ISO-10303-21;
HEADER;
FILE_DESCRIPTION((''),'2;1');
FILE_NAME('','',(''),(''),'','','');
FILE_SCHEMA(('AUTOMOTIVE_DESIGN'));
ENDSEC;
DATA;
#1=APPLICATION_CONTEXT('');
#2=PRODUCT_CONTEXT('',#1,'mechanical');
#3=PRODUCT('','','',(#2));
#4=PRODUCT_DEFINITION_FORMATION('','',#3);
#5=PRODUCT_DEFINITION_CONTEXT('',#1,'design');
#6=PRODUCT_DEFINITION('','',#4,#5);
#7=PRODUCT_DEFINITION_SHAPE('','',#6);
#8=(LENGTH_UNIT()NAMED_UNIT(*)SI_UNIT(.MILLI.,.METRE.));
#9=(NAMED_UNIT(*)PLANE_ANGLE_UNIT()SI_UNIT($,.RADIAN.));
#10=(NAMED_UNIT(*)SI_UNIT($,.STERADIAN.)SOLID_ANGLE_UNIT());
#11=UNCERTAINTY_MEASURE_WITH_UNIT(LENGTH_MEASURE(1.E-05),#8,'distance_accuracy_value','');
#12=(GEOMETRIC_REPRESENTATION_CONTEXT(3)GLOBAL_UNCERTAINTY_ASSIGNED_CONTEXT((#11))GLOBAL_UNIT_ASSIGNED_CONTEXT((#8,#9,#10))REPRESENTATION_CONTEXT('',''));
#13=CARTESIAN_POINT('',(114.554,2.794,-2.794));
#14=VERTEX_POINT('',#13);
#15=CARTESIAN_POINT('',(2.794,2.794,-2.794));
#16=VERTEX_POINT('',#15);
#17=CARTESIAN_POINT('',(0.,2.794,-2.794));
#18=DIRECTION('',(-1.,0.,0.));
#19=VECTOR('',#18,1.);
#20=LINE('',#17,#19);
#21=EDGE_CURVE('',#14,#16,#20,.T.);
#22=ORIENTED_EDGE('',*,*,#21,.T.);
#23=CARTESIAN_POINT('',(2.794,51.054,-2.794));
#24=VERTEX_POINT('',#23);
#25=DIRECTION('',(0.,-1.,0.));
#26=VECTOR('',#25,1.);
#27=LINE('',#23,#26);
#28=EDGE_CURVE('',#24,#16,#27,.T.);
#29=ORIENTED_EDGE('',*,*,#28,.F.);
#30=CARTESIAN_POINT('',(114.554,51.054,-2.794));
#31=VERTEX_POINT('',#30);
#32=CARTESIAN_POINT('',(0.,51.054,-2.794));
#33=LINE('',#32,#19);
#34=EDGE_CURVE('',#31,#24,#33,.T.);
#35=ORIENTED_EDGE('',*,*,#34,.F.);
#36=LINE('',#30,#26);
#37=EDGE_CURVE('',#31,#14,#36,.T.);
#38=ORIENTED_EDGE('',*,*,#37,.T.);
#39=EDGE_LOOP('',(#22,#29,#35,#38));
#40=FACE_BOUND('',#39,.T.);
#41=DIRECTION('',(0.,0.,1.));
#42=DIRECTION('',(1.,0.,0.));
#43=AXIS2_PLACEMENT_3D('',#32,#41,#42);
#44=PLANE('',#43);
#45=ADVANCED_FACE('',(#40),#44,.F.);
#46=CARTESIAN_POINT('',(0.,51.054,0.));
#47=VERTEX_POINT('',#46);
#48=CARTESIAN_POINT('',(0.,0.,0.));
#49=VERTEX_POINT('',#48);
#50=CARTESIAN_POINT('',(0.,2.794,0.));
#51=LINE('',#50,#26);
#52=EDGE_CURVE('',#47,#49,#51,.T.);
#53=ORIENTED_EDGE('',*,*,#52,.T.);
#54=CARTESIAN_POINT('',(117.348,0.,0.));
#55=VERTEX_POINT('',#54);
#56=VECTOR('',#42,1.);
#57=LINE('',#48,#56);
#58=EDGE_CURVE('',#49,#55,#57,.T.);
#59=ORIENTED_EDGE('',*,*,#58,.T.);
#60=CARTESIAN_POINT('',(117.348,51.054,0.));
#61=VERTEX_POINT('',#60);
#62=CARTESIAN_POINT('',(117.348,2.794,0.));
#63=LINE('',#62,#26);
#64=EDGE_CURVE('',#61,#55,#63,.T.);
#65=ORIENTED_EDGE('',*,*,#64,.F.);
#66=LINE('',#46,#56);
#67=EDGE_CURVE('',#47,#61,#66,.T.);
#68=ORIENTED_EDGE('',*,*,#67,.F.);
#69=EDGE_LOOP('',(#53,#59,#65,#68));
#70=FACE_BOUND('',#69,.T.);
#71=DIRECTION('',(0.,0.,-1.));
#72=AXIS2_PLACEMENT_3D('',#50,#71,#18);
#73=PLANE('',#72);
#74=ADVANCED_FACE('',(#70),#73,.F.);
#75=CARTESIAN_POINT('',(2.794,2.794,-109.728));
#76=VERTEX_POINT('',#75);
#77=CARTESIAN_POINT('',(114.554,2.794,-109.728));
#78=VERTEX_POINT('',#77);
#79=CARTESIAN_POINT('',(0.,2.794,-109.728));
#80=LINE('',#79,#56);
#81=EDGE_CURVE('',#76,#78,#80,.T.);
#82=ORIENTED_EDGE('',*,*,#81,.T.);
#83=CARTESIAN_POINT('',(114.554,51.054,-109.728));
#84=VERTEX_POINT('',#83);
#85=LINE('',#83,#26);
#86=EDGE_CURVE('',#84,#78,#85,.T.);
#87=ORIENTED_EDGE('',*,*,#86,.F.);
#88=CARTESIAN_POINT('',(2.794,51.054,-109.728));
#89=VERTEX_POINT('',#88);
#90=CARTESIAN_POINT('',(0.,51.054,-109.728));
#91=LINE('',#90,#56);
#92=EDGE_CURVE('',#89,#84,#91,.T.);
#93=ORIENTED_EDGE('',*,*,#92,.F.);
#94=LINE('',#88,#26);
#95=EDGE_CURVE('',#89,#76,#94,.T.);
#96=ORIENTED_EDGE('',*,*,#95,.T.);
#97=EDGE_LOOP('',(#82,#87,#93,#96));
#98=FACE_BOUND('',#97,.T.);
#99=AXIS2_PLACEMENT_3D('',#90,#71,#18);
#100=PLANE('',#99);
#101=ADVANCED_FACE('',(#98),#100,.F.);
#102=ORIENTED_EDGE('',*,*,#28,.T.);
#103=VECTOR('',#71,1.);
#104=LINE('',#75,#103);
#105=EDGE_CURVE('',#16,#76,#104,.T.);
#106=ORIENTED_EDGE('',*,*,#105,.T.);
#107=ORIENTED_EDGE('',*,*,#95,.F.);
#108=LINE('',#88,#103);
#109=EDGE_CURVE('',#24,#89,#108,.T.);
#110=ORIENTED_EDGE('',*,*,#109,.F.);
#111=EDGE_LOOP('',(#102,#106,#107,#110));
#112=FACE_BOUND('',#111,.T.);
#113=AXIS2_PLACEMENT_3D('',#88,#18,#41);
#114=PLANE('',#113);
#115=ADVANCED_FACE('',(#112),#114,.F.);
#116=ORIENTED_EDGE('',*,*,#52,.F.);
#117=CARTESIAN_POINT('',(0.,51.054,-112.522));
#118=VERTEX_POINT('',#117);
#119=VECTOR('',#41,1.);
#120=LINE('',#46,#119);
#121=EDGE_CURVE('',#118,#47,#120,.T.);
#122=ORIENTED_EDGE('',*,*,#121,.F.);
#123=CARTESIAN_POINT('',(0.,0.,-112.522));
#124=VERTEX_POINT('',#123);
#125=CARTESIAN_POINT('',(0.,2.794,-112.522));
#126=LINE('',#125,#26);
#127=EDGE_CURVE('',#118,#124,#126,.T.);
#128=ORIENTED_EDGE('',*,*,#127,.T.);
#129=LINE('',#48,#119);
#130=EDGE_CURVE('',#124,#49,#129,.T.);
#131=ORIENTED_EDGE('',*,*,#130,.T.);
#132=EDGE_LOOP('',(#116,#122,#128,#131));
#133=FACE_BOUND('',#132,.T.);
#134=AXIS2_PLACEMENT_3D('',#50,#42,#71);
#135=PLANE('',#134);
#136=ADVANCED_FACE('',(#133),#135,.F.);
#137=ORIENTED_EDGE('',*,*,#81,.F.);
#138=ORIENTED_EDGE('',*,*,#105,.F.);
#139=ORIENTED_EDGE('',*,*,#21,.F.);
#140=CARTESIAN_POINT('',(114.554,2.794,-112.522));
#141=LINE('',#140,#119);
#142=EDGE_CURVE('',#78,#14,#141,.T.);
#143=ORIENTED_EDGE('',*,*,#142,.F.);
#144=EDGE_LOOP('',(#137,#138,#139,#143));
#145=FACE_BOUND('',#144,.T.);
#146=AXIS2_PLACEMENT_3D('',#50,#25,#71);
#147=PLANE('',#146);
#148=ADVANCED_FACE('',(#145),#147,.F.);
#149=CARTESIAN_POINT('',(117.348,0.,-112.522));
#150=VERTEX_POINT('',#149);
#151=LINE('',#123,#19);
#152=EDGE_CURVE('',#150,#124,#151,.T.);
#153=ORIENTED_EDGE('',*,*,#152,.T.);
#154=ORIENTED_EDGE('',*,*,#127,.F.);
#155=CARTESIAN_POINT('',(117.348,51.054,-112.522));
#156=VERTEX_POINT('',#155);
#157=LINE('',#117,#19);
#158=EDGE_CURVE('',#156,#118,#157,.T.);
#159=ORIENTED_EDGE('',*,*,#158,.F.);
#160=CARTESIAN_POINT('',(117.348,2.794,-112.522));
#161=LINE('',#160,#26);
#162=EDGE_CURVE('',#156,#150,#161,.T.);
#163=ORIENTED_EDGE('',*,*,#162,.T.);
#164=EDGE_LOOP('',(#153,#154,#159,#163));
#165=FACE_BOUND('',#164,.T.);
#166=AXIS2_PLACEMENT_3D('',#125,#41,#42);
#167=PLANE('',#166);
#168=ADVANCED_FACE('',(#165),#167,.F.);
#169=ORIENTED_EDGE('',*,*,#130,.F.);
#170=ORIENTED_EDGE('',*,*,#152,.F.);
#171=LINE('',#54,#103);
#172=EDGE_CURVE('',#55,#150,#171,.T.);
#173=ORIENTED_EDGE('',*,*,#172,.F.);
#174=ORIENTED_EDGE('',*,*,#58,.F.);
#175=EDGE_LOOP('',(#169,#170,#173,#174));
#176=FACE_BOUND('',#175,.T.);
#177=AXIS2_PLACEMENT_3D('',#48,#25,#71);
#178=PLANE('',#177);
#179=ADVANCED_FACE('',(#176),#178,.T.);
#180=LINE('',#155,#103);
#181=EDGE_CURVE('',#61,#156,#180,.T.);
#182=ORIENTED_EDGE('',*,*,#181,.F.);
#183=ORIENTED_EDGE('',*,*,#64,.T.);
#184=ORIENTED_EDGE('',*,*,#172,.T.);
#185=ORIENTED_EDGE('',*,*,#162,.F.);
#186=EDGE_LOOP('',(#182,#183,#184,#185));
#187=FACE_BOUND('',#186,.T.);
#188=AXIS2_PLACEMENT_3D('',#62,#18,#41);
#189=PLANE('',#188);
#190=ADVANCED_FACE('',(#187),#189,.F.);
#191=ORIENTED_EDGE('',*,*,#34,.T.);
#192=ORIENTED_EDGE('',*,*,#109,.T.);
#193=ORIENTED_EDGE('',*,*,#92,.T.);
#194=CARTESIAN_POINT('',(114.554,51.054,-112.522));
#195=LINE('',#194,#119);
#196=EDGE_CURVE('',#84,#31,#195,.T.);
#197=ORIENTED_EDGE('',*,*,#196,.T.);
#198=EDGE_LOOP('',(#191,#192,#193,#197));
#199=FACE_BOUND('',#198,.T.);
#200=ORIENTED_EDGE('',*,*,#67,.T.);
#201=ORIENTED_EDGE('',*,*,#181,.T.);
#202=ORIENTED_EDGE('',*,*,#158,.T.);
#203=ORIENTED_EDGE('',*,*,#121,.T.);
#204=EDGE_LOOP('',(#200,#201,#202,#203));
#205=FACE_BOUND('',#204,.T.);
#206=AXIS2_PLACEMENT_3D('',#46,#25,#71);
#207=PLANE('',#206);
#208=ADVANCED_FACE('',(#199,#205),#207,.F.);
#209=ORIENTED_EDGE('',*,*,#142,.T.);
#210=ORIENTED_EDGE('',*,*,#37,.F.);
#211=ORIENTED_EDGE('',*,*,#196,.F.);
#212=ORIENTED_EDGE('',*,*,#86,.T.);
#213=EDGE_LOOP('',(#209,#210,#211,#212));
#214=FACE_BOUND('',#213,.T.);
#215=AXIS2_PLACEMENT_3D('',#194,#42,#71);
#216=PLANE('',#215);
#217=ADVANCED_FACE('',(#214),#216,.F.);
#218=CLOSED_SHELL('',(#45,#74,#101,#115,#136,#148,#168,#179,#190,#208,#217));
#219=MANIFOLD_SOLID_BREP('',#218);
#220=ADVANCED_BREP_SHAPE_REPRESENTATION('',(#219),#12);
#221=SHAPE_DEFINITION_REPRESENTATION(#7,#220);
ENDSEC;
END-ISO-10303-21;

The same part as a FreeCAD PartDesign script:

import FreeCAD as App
import Part
import Sketcher
from FreeCAD import Vector
Q = App.Units.Quantity


def add_polygon(sketch, points):
    """Adds a closed chain of lines whose ends are joined by coincident constraints."""
    first, n = sketch.GeometryCount, len(points)
    for a, b in zip(points, points[1:] + points[:1]):
        sketch.addGeometry(Part.LineSegment(App.Vector(*a, 0), App.Vector(*b, 0)), False)
    for i in range(n):
        sketch.addConstraint(Sketcher.Constraint("Coincident", first + i, 2, first + (i + 1) % n, 1))

doc = App.newDocument("Part")
body = doc.addObject("PartDesign::Body", "Body")

sketch1 = body.newObject("Sketcher::SketchObject", "Sketch")
sketch1.AttachmentSupport = (doc.getObject("XZ_Plane"), [""])
sketch1.MapMode = "FlatFace"
add_polygon(sketch1, [(0, -113), (0, 0), (117, 0), (117, -113)])
sketch1.addConstraint(Sketcher.Constraint("Vertical", 0))
sketch1.addConstraint(Sketcher.Constraint("Horizontal", 1))
sketch1.addConstraint(Sketcher.Constraint("Vertical", 2))
sketch1.addConstraint(Sketcher.Constraint("Horizontal", 3))
sketch1.addConstraint(Sketcher.Constraint("Coincident", 0, 2, -1, 1))
sketch1.addConstraint(Sketcher.Constraint("DistanceX", 1, 1, 1, 2, Q("4.62 in")))
sketch1.addConstraint(Sketcher.Constraint("DistanceY", 0, 1, 0, 2, Q("4.43 in")))
pad1 = body.newObject("PartDesign::Pad", "Pad")
pad1.Profile = sketch1
pad1.Length = Q("0.11 in")
pad1.Reversed = True

sketch2 = body.newObject("Sketcher::SketchObject", "Sketch001")
sketch2.AttachmentSupport = (doc.getObject("XZ_Plane"), [""])
sketch2.MapMode = "FlatFace"
sketch2.AttachmentOffset = App.Placement(Vector(0, 0, -0.11 * 25.4), App.Rotation())
add_polygon(sketch2, [(0, -2.8), (0, 0), (114.6, 0), (114.6, -2.8)])
sketch2.addConstraint(Sketcher.Constraint("Vertical", 0))
sketch2.addConstraint(Sketcher.Constraint("Horizontal", 1))
sketch2.addConstraint(Sketcher.Constraint("Vertical", 2))
sketch2.addConstraint(Sketcher.Constraint("Horizontal", 3))
sketch2.addConstraint(Sketcher.Constraint("Coincident", 0, 2, -1, 1))
sketch2.addConstraint(Sketcher.Constraint("DistanceX", 1, 1, 1, 2, Q("4.51 in")))
sketch2.addConstraint(Sketcher.Constraint("DistanceY", 0, 1, 0, 2, Q("0.11 in")))
pad2 = body.newObject("PartDesign::Pad", "Pad001")
pad2.Profile = sketch2
pad2.Length = Q("1.9 in")
pad2.Reversed = True
doc.recompute()

linearpattern = body.newObject("PartDesign::LinearPattern", "LinearPattern")
linearpattern.Originals = [pad2]
linearpattern.Direction = (doc.getObject("Z_Axis"), [""])
linearpattern.Mode = "offset"
linearpattern.Offset = Q("4.32 in")
linearpattern.Occurrences = 2
linearpattern.Reversed = True
body.Tip = linearpattern

sketch3 = body.newObject("Sketcher::SketchObject", "Sketch002")
sketch3.AttachmentSupport = (doc.getObject("XZ_Plane"), [""])
sketch3.MapMode = "FlatFace"
sketch3.AttachmentOffset = App.Placement(Vector(0, 0, -0.11 * 25.4), App.Rotation())
add_polygon(sketch3, [(0, -109.7), (0, -2.8), (2.8, -2.8), (2.8, -109.7)])
sketch3.addConstraint(Sketcher.Constraint("Vertical", 0))
sketch3.addConstraint(Sketcher.Constraint("Horizontal", 1))
sketch3.addConstraint(Sketcher.Constraint("Vertical", 2))
sketch3.addConstraint(Sketcher.Constraint("Horizontal", 3))
sketch3.addConstraint(Sketcher.Constraint("PointOnObject", 0, 2, -2))
sketch3.addConstraint(Sketcher.Constraint("DistanceX", 1, 1, 1, 2, Q("0.11 in")))
sketch3.addConstraint(Sketcher.Constraint("DistanceY", 0, 1, 0, 2, Q("4.21 in")))
sketch3.addConstraint(Sketcher.Constraint("DistanceY", 0, 2, -1, 1, Q("0.11 in")))
pad3 = body.newObject("PartDesign::Pad", "Pad002")
pad3.Profile = sketch3
pad3.Length = Q("1.9 in")
pad3.Reversed = True

sketch4 = body.newObject("Sketcher::SketchObject", "Sketch003")
sketch4.AttachmentSupport = (doc.getObject("XZ_Plane"), [""])
sketch4.MapMode = "FlatFace"
sketch4.AttachmentOffset = App.Placement(Vector(0, 0, -0.11 * 25.4), App.Rotation())
add_polygon(sketch4, [(114.6, -112.5), (114.6, 0), (117.3, 0), (117.3, -112.5)])
sketch4.addConstraint(Sketcher.Constraint("Vertical", 0))
sketch4.addConstraint(Sketcher.Constraint("Horizontal", 1))
sketch4.addConstraint(Sketcher.Constraint("Vertical", 2))
sketch4.addConstraint(Sketcher.Constraint("Horizontal", 3))
sketch4.addConstraint(Sketcher.Constraint("PointOnObject", 0, 2, -1))
sketch4.addConstraint(Sketcher.Constraint("DistanceX", 1, 1, 1, 2, Q("0.11 in")))
sketch4.addConstraint(Sketcher.Constraint("DistanceY", 0, 1, 0, 2, Q("4.43 in")))
sketch4.addConstraint(Sketcher.Constraint("DistanceX", -1, 1, 0, 2, Q("4.51 in")))
pad4 = body.newObject("PartDesign::Pad", "Pad003")
pad4.Profile = sketch4
pad4.Length = Q("1.9 in")
pad4.Reversed = True

doc.recompute()
